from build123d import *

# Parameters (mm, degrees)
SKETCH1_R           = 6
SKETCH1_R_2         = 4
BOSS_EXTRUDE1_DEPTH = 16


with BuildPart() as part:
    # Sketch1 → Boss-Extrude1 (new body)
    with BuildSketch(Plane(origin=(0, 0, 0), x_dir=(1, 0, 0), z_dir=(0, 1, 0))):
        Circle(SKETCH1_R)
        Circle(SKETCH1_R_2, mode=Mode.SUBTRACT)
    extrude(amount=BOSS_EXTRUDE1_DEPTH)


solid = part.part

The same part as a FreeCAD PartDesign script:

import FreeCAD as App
import Part
import Sketcher

V = App.Vector

doc = App.newDocument("Part")
body = doc.addObject("PartDesign::Body", "Body")

# Sketch on XZ plane
sketch1 = doc.addObject("Sketcher::SketchObject", "Sketch")
body.addObject(sketch1)
sketch1.AttachmentSupport = (doc.XZ_Plane, [""])
sketch1.MapMode = "FlatFace"
sketch1.addGeometry([
    Part.Circle(V(0, 0, 0), V(0, 0, 1), 6),
    Part.Circle(V(0, 0, 0), V(0, 0, 1), 4),
], False)
sketch1.addConstraint([
    Sketcher.Constraint("Coincident", 0, 3, -1, 1),
    Sketcher.Constraint("Coincident", 1, 3, -1, 1),
    Sketcher.Constraint("Diameter", 0, 12.0),
    Sketcher.Constraint("Diameter", 1, 8.0),
])
pad1 = doc.addObject("PartDesign::Pad", "Pad")
body.addObject(pad1)
pad1.Profile = sketch1
pad1.Length = 16
pad1.Reversed = True

doc.recompute()
